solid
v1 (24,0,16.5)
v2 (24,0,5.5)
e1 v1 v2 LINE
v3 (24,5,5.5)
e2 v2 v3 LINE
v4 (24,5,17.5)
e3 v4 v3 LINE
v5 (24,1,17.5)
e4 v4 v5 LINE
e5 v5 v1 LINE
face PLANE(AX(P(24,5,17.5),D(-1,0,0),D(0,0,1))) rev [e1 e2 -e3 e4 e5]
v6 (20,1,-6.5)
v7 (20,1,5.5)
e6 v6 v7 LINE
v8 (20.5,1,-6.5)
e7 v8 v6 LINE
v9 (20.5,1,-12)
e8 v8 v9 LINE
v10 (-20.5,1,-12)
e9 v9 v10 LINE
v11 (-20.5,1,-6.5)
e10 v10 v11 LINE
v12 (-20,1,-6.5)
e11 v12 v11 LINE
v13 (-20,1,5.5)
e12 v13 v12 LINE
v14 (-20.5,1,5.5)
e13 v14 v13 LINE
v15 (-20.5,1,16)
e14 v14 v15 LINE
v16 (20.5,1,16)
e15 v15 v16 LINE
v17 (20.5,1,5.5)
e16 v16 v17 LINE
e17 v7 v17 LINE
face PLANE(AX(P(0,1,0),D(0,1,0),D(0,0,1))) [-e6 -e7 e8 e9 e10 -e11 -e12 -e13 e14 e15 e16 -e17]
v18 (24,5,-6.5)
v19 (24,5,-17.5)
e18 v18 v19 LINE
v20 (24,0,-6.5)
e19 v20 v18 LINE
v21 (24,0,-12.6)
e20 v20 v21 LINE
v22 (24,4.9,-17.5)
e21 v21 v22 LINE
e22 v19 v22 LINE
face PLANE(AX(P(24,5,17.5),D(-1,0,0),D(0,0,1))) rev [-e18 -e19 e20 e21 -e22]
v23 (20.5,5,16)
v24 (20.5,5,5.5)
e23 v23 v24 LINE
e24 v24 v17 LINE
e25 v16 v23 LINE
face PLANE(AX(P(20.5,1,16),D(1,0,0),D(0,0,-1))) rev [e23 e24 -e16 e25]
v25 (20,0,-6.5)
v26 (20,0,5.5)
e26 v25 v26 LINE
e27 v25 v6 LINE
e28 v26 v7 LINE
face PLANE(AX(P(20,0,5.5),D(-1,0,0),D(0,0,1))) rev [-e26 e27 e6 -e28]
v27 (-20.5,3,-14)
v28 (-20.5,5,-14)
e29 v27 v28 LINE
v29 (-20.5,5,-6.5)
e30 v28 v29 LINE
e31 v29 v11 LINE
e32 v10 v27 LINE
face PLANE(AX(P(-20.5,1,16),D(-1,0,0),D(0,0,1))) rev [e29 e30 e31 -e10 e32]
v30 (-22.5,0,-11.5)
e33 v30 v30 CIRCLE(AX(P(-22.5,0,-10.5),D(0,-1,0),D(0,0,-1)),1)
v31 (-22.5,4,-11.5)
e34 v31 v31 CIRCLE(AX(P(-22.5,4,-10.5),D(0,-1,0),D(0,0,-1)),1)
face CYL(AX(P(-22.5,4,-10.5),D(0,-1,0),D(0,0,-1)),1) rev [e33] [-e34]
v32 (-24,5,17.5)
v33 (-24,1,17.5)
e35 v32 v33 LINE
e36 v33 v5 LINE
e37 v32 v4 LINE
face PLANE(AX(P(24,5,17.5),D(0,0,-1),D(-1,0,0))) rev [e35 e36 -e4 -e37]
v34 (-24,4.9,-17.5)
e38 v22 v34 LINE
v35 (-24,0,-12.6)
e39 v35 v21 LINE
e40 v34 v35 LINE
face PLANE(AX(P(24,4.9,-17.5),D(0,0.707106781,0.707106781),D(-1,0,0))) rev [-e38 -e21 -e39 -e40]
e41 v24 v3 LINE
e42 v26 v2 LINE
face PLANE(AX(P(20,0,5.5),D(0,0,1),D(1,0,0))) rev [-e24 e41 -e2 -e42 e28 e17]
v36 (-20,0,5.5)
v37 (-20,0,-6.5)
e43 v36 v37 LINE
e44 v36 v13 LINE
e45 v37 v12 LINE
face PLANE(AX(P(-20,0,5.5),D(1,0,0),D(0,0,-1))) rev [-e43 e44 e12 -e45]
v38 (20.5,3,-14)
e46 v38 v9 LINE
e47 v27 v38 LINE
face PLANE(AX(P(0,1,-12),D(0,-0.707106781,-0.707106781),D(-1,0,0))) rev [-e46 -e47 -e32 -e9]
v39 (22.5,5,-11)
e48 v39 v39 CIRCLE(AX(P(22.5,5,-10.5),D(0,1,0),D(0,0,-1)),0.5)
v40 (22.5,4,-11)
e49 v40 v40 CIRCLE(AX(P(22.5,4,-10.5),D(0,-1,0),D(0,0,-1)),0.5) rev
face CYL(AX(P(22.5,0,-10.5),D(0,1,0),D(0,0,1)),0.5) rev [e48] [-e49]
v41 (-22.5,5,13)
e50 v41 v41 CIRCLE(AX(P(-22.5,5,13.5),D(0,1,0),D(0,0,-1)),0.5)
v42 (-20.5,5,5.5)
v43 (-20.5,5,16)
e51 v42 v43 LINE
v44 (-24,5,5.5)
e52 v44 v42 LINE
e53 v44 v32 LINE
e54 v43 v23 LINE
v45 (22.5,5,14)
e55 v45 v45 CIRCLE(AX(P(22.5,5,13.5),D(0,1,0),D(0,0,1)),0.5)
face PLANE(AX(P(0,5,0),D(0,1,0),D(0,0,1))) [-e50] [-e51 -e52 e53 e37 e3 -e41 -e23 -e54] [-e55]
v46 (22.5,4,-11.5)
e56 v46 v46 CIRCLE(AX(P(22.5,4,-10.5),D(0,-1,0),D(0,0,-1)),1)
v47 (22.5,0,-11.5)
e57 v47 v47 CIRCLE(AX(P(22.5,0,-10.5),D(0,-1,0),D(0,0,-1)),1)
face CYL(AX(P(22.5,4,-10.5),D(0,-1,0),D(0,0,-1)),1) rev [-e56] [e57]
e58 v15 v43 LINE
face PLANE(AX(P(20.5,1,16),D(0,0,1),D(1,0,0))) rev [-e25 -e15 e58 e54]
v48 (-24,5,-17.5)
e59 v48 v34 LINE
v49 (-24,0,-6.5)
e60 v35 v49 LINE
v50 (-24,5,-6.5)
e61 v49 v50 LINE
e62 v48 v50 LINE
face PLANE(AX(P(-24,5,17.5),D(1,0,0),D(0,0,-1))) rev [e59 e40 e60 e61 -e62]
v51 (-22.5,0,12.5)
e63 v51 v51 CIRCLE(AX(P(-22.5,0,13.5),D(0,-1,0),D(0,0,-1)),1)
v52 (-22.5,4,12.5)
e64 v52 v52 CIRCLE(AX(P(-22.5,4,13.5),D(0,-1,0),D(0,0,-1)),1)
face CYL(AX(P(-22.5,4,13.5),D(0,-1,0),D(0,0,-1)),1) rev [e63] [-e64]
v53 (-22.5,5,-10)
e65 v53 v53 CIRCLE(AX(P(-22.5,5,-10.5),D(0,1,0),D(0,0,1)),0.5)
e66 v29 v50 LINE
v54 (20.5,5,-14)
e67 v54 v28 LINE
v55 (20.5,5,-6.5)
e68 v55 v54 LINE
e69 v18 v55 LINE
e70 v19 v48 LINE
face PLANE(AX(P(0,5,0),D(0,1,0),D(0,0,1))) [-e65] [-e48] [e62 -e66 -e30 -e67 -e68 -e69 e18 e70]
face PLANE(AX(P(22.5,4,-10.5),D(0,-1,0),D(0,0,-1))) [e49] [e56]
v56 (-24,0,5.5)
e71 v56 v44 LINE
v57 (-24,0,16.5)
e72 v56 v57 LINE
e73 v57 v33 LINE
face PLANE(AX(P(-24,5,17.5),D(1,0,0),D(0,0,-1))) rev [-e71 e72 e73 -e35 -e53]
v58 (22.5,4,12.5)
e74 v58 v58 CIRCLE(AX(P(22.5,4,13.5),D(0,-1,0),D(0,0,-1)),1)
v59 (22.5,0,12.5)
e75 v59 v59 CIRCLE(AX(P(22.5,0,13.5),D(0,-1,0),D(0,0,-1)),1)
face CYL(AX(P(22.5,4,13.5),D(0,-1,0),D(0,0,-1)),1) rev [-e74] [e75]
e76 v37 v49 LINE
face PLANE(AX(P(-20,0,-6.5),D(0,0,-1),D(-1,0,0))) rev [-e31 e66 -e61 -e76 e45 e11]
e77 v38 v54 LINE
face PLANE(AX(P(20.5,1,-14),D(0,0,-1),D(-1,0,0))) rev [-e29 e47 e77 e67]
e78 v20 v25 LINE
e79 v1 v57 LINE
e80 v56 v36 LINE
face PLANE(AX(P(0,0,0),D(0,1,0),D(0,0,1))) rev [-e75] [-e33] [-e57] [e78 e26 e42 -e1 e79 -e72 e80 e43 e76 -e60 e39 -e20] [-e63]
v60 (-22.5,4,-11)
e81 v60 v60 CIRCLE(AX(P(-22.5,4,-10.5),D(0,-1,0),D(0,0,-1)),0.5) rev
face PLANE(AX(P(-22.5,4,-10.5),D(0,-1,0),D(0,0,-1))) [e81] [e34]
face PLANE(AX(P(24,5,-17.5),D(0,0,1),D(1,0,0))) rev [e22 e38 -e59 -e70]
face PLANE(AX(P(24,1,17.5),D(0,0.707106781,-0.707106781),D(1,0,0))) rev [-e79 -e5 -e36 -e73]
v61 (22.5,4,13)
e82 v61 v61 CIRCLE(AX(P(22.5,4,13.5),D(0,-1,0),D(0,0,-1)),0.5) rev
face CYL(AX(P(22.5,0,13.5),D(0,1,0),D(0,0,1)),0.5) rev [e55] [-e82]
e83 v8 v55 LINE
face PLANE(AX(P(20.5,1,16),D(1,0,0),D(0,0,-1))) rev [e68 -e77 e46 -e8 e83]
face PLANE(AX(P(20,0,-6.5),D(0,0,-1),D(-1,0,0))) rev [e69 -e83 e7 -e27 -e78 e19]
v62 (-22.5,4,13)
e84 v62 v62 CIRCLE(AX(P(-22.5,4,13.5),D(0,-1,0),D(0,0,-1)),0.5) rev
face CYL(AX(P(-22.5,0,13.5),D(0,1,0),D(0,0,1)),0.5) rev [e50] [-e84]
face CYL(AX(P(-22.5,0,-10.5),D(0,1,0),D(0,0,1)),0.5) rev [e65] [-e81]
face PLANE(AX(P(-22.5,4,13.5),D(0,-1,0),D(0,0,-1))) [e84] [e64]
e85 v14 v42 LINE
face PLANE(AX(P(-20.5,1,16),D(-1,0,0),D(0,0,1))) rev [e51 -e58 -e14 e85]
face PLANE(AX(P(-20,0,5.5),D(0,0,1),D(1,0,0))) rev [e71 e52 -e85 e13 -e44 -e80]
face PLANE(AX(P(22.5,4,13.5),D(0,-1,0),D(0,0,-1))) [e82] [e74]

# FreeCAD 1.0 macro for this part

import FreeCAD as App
import Part
import Sketcher
from FreeCAD import Vector


def edges_at(feature, points):
    """Names of the edges that pass closest to the given points."""
    edges = feature.Shape.Edges
    near = lambda p: min(range(len(edges)), key=lambda i: edges[i].distToShape(Part.Vertex(*p))[0])
    return sorted({f"Edge{near(p) + 1}" for p in points})


def add_polygon(sketch, points):
    """Adds a closed chain of lines whose ends are joined by coincident constraints."""
    first, n = sketch.GeometryCount, len(points)
    for a, b in zip(points, points[1:] + points[:1]):
        sketch.addGeometry(Part.LineSegment(App.Vector(*a, 0), App.Vector(*b, 0)), False)
    for i in range(n):
        sketch.addConstraint(Sketcher.Constraint("Coincident", first + i, 2, first + (i + 1) % n, 1))

doc = App.newDocument("Part")
body = doc.addObject("PartDesign::Body", "Body")

sketch1 = body.newObject("Sketcher::SketchObject", "Sketch")
sketch1.AttachmentSupport = (doc.getObject("XZ_Plane"), [""])
sketch1.MapMode = "FlatFace"
add_polygon(sketch1, [(-24, -18), (-24, 18), (24, 18), (24, -18)])
sketch1.addConstraint([
    Sketcher.Constraint("Vertical", 0),
    Sketcher.Constraint("Horizontal", 1),
    Sketcher.Constraint("Vertical", 2),
    Sketcher.Constraint("Horizontal", 3),
    Sketcher.Constraint("Symmetric", 0, 2, 2, 2, -1, 1),
    Sketcher.Constraint("DistanceX", 1, 1, 1, 2, 48.0),
    Sketcher.Constraint("DistanceY", 0, 1, 0, 2, 35.0),
])
pad1 = body.newObject("PartDesign::Pad", "Pad")
pad1.Profile = sketch1
pad1.Length = 5
pad1.Reversed = True

sketch2 = body.newObject("Sketcher::SketchObject", "Sketch001")
sketch2.AttachmentSupport = (doc.getObject("XZ_Plane"), [""])
sketch2.MapMode = "FlatFace"
sketch2.AttachmentOffset = App.Placement(Vector(0, 0, -5), App.Rotation())
add_polygon(sketch2, [(-20, -14), (-20, 16), (20, 16), (20, -14)])
sketch2.addConstraint([
    Sketcher.Constraint("Vertical", 0),
    Sketcher.Constraint("Horizontal", 1),
    Sketcher.Constraint("Vertical", 2),
    Sketcher.Constraint("Horizontal", 3),
    Sketcher.Constraint("DistanceX", 1, 1, 1, 2, 41.0),
    Sketcher.Constraint("DistanceY", 0, 1, 0, 2, 30.0),
    Sketcher.Constraint("DistanceY", -1, 1, 0, 2, 16.0),
    Sketcher.Constraint("DistanceX", 0, 2, -1, 1, 20.5),
])
pocket1 = body.newObject("PartDesign::Pocket", "Pocket")
pocket1.Profile = sketch2
pocket1.Length = 4
pocket1.Reversed = True

sketch3 = body.newObject("Sketcher::SketchObject", "Sketch002")
sketch3.AttachmentSupport = (doc.getObject("XZ_Plane"), [""])
sketch3.MapMode = "FlatFace"
sketch3.AttachmentOffset = App.Placement(Vector(0, 0, -5), App.Rotation())
sketch3.addGeometry([
    Part.Circle(Vector(-22.5, -10.5, 0), Vector(0, 0, 1), 0.5),
    Part.Circle(Vector(-22.5, 13.5, 0), Vector(0, 0, 1), 0.5),
    Part.Circle(Vector(22.5, 13.5, 0), Vector(0, 0, 1), 0.5),
    Part.Circle(Vector(22.5, -10.5, 0), Vector(0, 0, 1), 0.5),
], False)
sketch3.addConstraint([
    Sketcher.Constraint("Equal", 0, 1),
    Sketcher.Constraint("Equal", 1, 2),
    Sketcher.Constraint("Equal", 2, 3),
    Sketcher.Constraint("Symmetric", 1, 3, 2, 3, -2),
    Sketcher.Constraint("Symmetric", 0, 3, 3, 3, -2),
    Sketcher.Constraint("Vertical", 0, 3, 1, 3),
    Sketcher.Constraint("Diameter", 0, 1.0),
    Sketcher.Constraint("DistanceY", 0, 3, 1, 3, 24.0),
    Sketcher.Constraint("DistanceX", 1, 3, 2, 3, 45.0),
    Sketcher.Constraint("DistanceY", 0, 3, -1, 1, 10.5),
])
pocket2 = body.newObject("PartDesign::Pocket", "Pocket001")
pocket2.Profile = sketch3
pocket2.Type = "ThroughAll"
pocket2.Reversed = True

sketch4 = body.newObject("Sketcher::SketchObject", "Sketch003")
sketch4.AttachmentSupport = (doc.getObject("XZ_Plane"), [""])
sketch4.MapMode = "FlatFace"
sketch4.addGeometry([
    Part.Circle(Vector(-22.5, -10.5, 0), Vector(0, 0, 1), 1),
    Part.Circle(Vector(-22.5, 13.5, 0), Vector(0, 0, 1), 1),
    Part.Circle(Vector(22.5, 13.5, 0), Vector(0, 0, 1), 1),
    Part.Circle(Vector(22.5, -10.5, 0), Vector(0, 0, 1), 1),
], False)
sketch4.addConstraint([
    Sketcher.Constraint("Equal", 0, 1),
    Sketcher.Constraint("Equal", 1, 2),
    Sketcher.Constraint("Equal", 2, 3),
    Sketcher.Constraint("Symmetric", 1, 3, 2, 3, -2),
    Sketcher.Constraint("Symmetric", 0, 3, 3, 3, -2),
    Sketcher.Constraint("Vertical", 0, 3, 1, 3),
    Sketcher.Constraint("Diameter", 0, 2.0),
    Sketcher.Constraint("DistanceY", 0, 3, 1, 3, 24.0),
    Sketcher.Constraint("DistanceX", 1, 3, 2, 3, 45.0),
    Sketcher.Constraint("DistanceY", 0, 3, -1, 1, 10.5),
])
pocket3 = body.newObject("PartDesign::Pocket", "Pocket002")
pocket3.Profile = sketch4
pocket3.Length = 4

sketch5 = body.newObject("Sketcher::SketchObject", "Sketch004")
sketch5.AttachmentSupport = (doc.getObject("XZ_Plane"), [""])
sketch5.MapMode = "FlatFace"
sketch5.AttachmentOffset = App.Placement(Vector(0, 0, -5), App.Rotation())
add_polygon(sketch5, [(-24, -6.5), (-24, 5.5), (-20, 5.5), (-20, -6.5)])
add_polygon(sketch5, [(20, -6.5), (20, 5.5), (24, 5.5), (24, -6.5)])
sketch5.addConstraint([
    Sketcher.Constraint("Vertical", 0),
    Sketcher.Constraint("Horizontal", 1),
    Sketcher.Constraint("Vertical", 2),
    Sketcher.Constraint("Horizontal", 3),
    Sketcher.Constraint("Vertical", 4),
    Sketcher.Constraint("Horizontal", 5),
    Sketcher.Constraint("Vertical", 6),
    Sketcher.Constraint("Horizontal", 7),
    Sketcher.Constraint("Symmetric", 1, 2, 4, 2, -2),
    Sketcher.Constraint("Symmetric", 3, 2, 6, 2, -2),
    Sketcher.Constraint("DistanceX", 1, 1, 1, 2, 4.0),
    Sketcher.Constraint("DistanceY", 0, 1, 0, 2, 12.0),
    Sketcher.Constraint("DistanceX", 0, 2, -1, 1, 24.0),
    Sketcher.Constraint("DistanceY", -1, 1, 0, 2, 5.5),
])
pocket4 = body.newObject("PartDesign::Pocket", "Pocket003")
pocket4.Profile = sketch5
pocket4.Type = "ThroughAll"
pocket4.Reversed = True
doc.recompute()

chamfer = body.newObject("PartDesign::Chamfer", "Chamfer")
chamfer.Base = (pocket4, edges_at(pocket4, [(0, 0, -17.5)]))
chamfer.Size = 4.9
doc.recompute()

chamfer2 = body.newObject("PartDesign::Chamfer", "Chamfer001")
chamfer2.Base = (chamfer, edges_at(chamfer, [(0, 0, 17.5)]))
chamfer2.Size = 1
doc.recompute()

chamfer3 = body.newObject("PartDesign::Chamfer", "Chamfer002")
chamfer3.Base = (chamfer2, edges_at(chamfer2, [(0, 1, -14)]))
chamfer3.Size = 2

doc.recompute()
